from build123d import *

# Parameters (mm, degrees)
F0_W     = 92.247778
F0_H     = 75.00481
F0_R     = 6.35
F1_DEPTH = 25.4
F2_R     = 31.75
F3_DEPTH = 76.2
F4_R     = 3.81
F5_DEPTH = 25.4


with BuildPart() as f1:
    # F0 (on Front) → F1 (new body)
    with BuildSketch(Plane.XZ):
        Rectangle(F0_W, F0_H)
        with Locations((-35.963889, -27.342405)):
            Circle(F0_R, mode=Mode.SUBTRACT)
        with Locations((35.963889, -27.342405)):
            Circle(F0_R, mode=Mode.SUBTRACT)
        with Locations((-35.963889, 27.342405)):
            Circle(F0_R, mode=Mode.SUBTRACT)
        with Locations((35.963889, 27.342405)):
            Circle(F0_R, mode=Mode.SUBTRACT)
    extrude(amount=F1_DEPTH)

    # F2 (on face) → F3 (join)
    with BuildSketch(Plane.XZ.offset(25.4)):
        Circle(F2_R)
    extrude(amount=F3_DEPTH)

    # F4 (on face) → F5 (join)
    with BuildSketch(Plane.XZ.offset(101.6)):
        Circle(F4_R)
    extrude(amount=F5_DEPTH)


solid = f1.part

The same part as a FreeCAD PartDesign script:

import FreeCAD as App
import Part
import Sketcher

V = App.Vector
Q = App.Units.Quantity


def add_polygon(sketch, points):
    """Adds a closed chain of lines whose ends are joined by coincident constraints."""
    first, n = sketch.GeometryCount, len(points)
    for a, b in zip(points, points[1:] + points[:1]):
        sketch.addGeometry(Part.LineSegment(App.Vector(*a, 0), App.Vector(*b, 0)), False)
    for i in range(n):
        sketch.addConstraint(Sketcher.Constraint("Coincident", first + i, 2, first + (i + 1) % n, 1))

doc = App.newDocument("Part")
body = doc.addObject("PartDesign::Body", "Body")

# Sketch on XZ plane
sketch1 = body.newObject("Sketcher::SketchObject", "Sketch")
sketch1.AttachmentSupport = (doc.getObject("XZ_Plane"), [""])
sketch1.MapMode = "FlatFace"
add_polygon(sketch1, [(-46, 38), (-46, -38), (46, -38), (46, 38)])  # lines 0-3
sketch1.addGeometry(Part.Circle(V(-36, -27, 0), V(0, 0, 1), 6), False)  # 4
sketch1.addGeometry(Part.Circle(V(36, -27, 0), V(0, 0, 1), 6), False)  # 5
sketch1.addGeometry(Part.Circle(V(-36, 27, 0), V(0, 0, 1), 6), False)  # 6
sketch1.addGeometry(Part.Circle(V(36, 27, 0), V(0, 0, 1), 6), False)  # 7
sketch1.addConstraint([
    Sketcher.Constraint("Vertical", 0),
    Sketcher.Constraint("Horizontal", 1),
    Sketcher.Constraint("Vertical", 2),
    Sketcher.Constraint("Horizontal", 3),
    Sketcher.Constraint("Equal", 4, 5),
    Sketcher.Constraint("Equal", 5, 6),
    Sketcher.Constraint("Equal", 6, 7),
    Sketcher.Constraint("Symmetric", 5, 3, 6, 3, -1, 1),
    Sketcher.Constraint("Symmetric", 4, 3, 7, 3, -1, 1),
    Sketcher.Constraint("Symmetric", 0, 2, 2, 2, -1, 1),
    Sketcher.Constraint("Symmetric", 4, 3, 5, 3, -2),
    Sketcher.Constraint("Diameter", 4, Q("0.5 in")),
    Sketcher.Constraint("DistanceX", 0, 2, 4, 3, Q("0.4 in")),
    Sketcher.Constraint("DistanceY", 0, 2, 4, 3, Q("0.4 in")),
    Sketcher.Constraint("DistanceY", 0, 2, 0, 1, 75.00481),
    Sketcher.Constraint("DistanceX", 1, 1, 1, 2, 92.247778),
])
pad1 = body.newObject("PartDesign::Pad", "Pad")
pad1.Profile = sketch1
pad1.Length = Q("1 in")

# Sketch on XZ plane
sketch2 = body.newObject("Sketcher::SketchObject", "Sketch001")
sketch2.AttachmentSupport = (doc.getObject("XZ_Plane"), [""])
sketch2.MapMode = "FlatFace"
sketch2.AttachmentOffset = App.Placement(V(0, 0, 1 * 25.4), App.Rotation())
sketch2.addGeometry(Part.Circle(V(0, 0, 0), V(0, 0, 1), 32), False)
sketch2.addConstraint([
    Sketcher.Constraint("Coincident", 0, 3, -1, 1),
    Sketcher.Constraint("Diameter", 0, Q("2.5 in")),
])
pad2 = body.newObject("PartDesign::Pad", "Pad001")
pad2.Profile = sketch2
pad2.Length = Q("3 in")

# Sketch on XZ plane
sketch3 = body.newObject("Sketcher::SketchObject", "Sketch002")
sketch3.AttachmentSupport = (doc.getObject("XZ_Plane"), [""])
sketch3.MapMode = "FlatFace"
sketch3.AttachmentOffset = App.Placement(V(0, 0, 4 * 25.4), App.Rotation())
sketch3.addGeometry(Part.Circle(V(0, 0, 0), V(0, 0, 1), 3.8), False)
sketch3.addConstraint([
    Sketcher.Constraint("Coincident", 0, 3, -1, 1),
    Sketcher.Constraint("Diameter", 0, Q("0.3 in")),
])
pad3 = body.newObject("PartDesign::Pad", "Pad002")
pad3.Profile = sketch3
pad3.Length = Q("1 in")

doc.recompute()
